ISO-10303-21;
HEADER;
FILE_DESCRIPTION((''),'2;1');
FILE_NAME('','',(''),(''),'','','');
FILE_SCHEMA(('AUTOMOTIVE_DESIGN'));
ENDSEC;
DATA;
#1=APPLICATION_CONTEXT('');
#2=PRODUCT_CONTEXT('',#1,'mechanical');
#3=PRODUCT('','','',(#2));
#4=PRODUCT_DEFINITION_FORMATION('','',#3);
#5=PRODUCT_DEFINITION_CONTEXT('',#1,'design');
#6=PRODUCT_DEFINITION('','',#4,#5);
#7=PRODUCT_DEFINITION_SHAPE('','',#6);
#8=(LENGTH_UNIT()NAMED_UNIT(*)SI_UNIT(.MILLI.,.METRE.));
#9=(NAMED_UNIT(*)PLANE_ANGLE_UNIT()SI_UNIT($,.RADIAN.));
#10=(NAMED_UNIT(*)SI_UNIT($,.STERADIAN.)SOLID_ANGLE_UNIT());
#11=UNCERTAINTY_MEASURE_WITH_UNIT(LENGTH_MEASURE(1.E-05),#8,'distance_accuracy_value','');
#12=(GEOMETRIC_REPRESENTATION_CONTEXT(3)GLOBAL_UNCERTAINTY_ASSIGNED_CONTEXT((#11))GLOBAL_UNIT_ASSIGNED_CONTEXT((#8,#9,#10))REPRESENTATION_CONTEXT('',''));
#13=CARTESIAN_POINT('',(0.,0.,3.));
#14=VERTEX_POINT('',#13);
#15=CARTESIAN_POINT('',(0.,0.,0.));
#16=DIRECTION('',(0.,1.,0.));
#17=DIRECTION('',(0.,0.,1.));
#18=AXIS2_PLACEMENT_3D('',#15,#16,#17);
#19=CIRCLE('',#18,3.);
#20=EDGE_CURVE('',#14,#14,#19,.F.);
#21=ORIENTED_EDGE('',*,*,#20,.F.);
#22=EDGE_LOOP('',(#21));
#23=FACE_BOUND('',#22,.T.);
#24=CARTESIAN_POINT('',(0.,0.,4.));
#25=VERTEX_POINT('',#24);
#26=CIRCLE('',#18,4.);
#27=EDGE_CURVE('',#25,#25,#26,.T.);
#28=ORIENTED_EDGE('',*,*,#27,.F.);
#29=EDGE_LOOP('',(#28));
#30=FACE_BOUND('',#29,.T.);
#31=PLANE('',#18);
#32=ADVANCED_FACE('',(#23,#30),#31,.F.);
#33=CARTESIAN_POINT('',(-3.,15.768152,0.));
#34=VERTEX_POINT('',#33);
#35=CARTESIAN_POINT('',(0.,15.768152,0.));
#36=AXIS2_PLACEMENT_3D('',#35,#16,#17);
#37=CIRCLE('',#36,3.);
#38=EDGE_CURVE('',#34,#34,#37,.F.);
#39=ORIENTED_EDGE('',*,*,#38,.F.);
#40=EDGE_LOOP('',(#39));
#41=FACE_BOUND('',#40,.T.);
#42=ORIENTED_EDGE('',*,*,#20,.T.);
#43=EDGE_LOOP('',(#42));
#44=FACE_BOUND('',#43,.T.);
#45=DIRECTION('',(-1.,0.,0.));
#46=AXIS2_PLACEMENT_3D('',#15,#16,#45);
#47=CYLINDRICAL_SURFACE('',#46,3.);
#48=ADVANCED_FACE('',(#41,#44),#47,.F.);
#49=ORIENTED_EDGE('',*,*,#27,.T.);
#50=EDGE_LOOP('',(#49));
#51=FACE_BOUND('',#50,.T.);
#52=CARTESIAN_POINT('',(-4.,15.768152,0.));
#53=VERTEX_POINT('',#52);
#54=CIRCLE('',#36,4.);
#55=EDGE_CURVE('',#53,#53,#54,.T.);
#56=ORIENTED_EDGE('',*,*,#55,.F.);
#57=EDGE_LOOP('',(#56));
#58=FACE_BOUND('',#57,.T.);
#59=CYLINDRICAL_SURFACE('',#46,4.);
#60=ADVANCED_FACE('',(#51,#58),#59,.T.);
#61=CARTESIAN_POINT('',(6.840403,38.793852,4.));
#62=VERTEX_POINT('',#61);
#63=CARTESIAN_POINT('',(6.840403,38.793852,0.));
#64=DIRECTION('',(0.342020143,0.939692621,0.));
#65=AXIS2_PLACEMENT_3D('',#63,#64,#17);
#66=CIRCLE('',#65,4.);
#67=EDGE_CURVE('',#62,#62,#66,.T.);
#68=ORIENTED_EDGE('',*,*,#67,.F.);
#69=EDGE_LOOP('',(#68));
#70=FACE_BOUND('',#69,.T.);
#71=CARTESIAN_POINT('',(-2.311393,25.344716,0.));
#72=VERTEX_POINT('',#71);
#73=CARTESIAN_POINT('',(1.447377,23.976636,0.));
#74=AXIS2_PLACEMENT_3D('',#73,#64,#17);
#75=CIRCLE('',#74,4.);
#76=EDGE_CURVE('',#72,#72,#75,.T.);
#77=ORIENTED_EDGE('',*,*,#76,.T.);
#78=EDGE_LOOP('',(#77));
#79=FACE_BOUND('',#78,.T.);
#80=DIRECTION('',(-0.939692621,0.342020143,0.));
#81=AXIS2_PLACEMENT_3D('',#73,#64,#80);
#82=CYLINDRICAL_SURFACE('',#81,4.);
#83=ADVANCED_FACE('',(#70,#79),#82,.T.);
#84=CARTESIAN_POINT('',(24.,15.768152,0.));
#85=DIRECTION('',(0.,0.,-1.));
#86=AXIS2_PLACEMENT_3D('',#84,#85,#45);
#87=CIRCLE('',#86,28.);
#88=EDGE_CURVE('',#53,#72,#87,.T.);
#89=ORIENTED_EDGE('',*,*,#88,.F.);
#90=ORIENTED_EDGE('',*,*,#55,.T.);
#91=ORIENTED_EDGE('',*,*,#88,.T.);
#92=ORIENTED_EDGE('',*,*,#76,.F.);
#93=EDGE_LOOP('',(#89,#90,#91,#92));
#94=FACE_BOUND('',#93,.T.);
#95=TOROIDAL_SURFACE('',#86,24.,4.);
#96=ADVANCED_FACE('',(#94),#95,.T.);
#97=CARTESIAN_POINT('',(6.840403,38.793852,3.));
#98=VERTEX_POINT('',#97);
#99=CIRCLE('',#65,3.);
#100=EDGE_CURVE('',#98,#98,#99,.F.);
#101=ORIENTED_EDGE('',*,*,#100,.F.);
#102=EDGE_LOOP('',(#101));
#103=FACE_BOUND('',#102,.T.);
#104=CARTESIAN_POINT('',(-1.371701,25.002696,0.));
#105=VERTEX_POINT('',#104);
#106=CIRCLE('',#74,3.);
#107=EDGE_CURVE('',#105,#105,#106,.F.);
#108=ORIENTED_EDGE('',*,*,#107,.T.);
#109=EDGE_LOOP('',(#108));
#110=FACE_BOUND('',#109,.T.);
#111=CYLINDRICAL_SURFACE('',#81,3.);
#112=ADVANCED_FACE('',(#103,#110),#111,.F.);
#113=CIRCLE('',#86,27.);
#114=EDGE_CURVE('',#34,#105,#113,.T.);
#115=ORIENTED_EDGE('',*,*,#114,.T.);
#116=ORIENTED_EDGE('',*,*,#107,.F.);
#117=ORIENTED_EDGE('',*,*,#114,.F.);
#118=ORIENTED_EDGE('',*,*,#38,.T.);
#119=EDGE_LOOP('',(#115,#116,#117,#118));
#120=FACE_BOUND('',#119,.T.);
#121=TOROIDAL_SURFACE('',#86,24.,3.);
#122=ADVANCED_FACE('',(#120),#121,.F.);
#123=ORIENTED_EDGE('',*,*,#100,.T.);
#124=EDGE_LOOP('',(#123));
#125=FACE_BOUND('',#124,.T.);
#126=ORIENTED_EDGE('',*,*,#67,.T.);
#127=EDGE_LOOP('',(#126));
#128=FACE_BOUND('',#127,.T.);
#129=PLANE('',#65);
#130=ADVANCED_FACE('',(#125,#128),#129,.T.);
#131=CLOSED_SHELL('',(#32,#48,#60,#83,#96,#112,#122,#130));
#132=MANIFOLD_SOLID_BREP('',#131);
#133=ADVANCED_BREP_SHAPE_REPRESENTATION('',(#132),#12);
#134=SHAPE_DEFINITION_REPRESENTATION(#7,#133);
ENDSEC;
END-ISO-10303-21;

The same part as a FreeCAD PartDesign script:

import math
import FreeCAD as App
import Part
import Sketcher
from FreeCAD import Vector
Q = App.Units.Quantity

doc = App.newDocument("Part")
body = doc.addObject("PartDesign::Body", "Body")

# Sketch on XZ plane
sketch1 = body.newObject("Sketcher::SketchObject", "Sketch")
sketch1.AttachmentSupport = (doc.getObject("XZ_Plane"), [""])
sketch1.MapMode = "FlatFace"
sketch1.addGeometry([
    Part.Circle(Vector(0, 0, 0), Vector(0, 0, 1), 4),
    Part.Circle(Vector(0, 0, 0), Vector(0, 0, 1), 3),
], False)
sketch1.addConstraint([
    Sketcher.Constraint("Coincident", 0, 3, -1, 1),
    Sketcher.Constraint("Coincident", 1, 3, -1, 1),
    Sketcher.Constraint("Diameter", 0, 8.0),
    Sketcher.Constraint("Diameter", 1, 6.0),
])

# Sketch on XY plane
sketch2 = body.newObject("Sketcher::SketchObject", "Sketch001")
sketch2.AttachmentSupport = (doc.getObject("XY_Plane"), [""])
sketch2.MapMode = "FlatFace"
sketch2.addGeometry([
    Part.LineSegment(Vector(0, 0, 0), Vector(0, 15.768152, 0)),
    Part.ArcOfCircle(Part.Circle(Vector(24, 15.768152, 0), Vector(0, 0, 1), 24), math.radians(160), math.radians(180)),
    Part.LineSegment(Vector(1.447377, 23.976636, 0), Vector(6.840403, 38.793852, 0)),
], False)
sketch2.addConstraint([
    Sketcher.Constraint("Tangent", 0, 2, 1, 2),
    Sketcher.Constraint("Tangent", 1, 1, 2, 1),
    Sketcher.Constraint("Vertical", 0),
    Sketcher.Constraint("Coincident", 0, 1, -1, 1),
    Sketcher.Constraint("Radius", 1, 24.0),
    Sketcher.Constraint("Angle", 2, Q("70 deg")),
    Sketcher.Constraint("DistanceY", 0, 2, 2, 2, 23.0257),
    Sketcher.Constraint("DistanceY", 0, 1, 0, 2, 15.768152),
])
doc.recompute()

additivepipe = body.newObject("PartDesign::AdditivePipe", "AdditivePipe")
additivepipe.Profile = sketch1
additivepipe.Spine = (sketch2, ["Edge1", "Edge2", "Edge3"])

doc.recompute()
